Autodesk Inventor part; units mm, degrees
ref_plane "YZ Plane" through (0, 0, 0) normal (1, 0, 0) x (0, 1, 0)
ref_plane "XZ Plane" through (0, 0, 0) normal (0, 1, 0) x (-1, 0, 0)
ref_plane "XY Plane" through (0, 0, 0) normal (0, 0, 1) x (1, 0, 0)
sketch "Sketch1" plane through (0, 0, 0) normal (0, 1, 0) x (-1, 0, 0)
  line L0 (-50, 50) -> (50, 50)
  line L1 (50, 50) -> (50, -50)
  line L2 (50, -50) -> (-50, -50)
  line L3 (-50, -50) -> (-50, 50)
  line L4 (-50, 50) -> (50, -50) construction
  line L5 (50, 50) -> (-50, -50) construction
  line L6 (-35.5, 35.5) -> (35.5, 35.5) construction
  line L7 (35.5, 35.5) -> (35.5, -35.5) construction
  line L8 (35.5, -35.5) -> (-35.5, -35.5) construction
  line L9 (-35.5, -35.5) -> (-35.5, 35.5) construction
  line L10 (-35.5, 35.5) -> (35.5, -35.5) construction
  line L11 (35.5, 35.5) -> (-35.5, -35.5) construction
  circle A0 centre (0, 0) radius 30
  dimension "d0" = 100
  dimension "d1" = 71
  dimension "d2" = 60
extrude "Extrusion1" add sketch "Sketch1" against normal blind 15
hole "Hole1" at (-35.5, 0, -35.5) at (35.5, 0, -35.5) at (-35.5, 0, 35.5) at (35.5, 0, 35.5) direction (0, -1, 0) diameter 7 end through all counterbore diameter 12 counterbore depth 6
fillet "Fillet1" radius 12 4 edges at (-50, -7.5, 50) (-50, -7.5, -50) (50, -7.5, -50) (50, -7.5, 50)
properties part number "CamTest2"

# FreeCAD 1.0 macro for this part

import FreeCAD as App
import Part
import Sketcher
from FreeCAD import Vector


def edges_at(feature, points):
    """Names of the edges that pass closest to the given points."""
    edges = feature.Shape.Edges
    near = lambda p: min(range(len(edges)), key=lambda i: edges[i].distToShape(Part.Vertex(*p))[0])
    return sorted({f"Edge{near(p) + 1}" for p in points})

doc = App.newDocument("Part")
body = doc.addObject("PartDesign::Body", "Body")

sketch1 = body.newObject("Sketcher::SketchObject", "Sketch")
sketch1.AttachmentSupport = (doc.getObject("XZ_Plane"), [""])
sketch1.MapMode = "FlatFace"
sketch1.addGeometry([
    Part.LineSegment(Vector(-50, 50, 0), Vector(50, 50, 0)),
    Part.LineSegment(Vector(50, 50, 0), Vector(50, -50, 0)),
    Part.LineSegment(Vector(50, -50, 0), Vector(-50, -50, 0)),
    Part.LineSegment(Vector(-50, -50, 0), Vector(-50, 50, 0)),
    Part.Circle(Vector(0, 0, 0), Vector(0, 0, 1), 30),
], False)
sketch1.addConstraint([
    Sketcher.Constraint("Coincident", 0, 2, 1, 1),
    Sketcher.Constraint("Coincident", 1, 2, 2, 1),
    Sketcher.Constraint("Coincident", 2, 2, 3, 1),
    Sketcher.Constraint("Coincident", 3, 2, 0, 1),
    Sketcher.Constraint("Horizontal", 0),
    Sketcher.Constraint("Vertical", 1),
    Sketcher.Constraint("Horizontal", 2),
    Sketcher.Constraint("Vertical", 3),
    Sketcher.Constraint("Coincident", 4, 3, -1, 1),
    Sketcher.Constraint("Symmetric", 0, 2, 2, 2, -1, 1),
    Sketcher.Constraint("Equal", 2, 1),
    Sketcher.Constraint("Diameter", 4, 60.0),
    Sketcher.Constraint("DistanceX", 0, 1, 0, 2, 100.0),
])
pad1 = body.newObject("PartDesign::Pad", "Pad")
pad1.Profile = sketch1
pad1.Length = 15

sketch2 = body.newObject("Sketcher::SketchObject", "Sketch001")
sketch2.AttachmentSupport = (doc.getObject("XZ_Plane"), [""])
sketch2.MapMode = "FlatFace"
sketch2.addGeometry([
    Part.Circle(Vector(-35.5, -35.5, 0), Vector(0, 0, 1), 3.5),
    Part.Circle(Vector(35.5, -35.5, 0), Vector(0, 0, 1), 3.5),
    Part.Circle(Vector(-35.5, 35.5, 0), Vector(0, 0, 1), 3.5),
    Part.Circle(Vector(35.5, 35.5, 0), Vector(0, 0, 1), 3.5),
], False)
sketch2.addConstraint([
    Sketcher.Constraint("Equal", 0, 1),
    Sketcher.Constraint("Equal", 1, 2),
    Sketcher.Constraint("Equal", 2, 3),
    Sketcher.Constraint("Symmetric", 1, 3, 2, 3, -1, 1),
    Sketcher.Constraint("Symmetric", 0, 3, 3, 3, -1, 1),
    Sketcher.Constraint("Symmetric", 0, 3, 1, 3, -2),
    Sketcher.Constraint("Diameter", 0, 7.0),
    Sketcher.Constraint("DistanceX", 0, 3, 1, 3, 71.0),
    Sketcher.Constraint("DistanceY", 0, 3, 2, 3, 71.0),
])
doc.recompute()
hole = body.newObject("PartDesign::Hole", "Hole")
hole.Profile = sketch2
hole.ThreadType = "None"
hole.Diameter = 7
hole.DepthType = "ThroughAll"
hole.HoleCutType = "Counterbore"
hole.HoleCutDiameter = 12
hole.HoleCutDepth = 6
hole.Reversed = True
doc.recompute()

fillet = body.newObject("PartDesign::Fillet", "Fillet")
fillet.Base = (hole, edges_at(hole, [
    (-50, -7.5, 50),
    (-50, -7.5, -50),
    (50, -7.5, -50),
    (50, -7.5, 50),
]))
fillet.Radius = 12

doc.recompute()
